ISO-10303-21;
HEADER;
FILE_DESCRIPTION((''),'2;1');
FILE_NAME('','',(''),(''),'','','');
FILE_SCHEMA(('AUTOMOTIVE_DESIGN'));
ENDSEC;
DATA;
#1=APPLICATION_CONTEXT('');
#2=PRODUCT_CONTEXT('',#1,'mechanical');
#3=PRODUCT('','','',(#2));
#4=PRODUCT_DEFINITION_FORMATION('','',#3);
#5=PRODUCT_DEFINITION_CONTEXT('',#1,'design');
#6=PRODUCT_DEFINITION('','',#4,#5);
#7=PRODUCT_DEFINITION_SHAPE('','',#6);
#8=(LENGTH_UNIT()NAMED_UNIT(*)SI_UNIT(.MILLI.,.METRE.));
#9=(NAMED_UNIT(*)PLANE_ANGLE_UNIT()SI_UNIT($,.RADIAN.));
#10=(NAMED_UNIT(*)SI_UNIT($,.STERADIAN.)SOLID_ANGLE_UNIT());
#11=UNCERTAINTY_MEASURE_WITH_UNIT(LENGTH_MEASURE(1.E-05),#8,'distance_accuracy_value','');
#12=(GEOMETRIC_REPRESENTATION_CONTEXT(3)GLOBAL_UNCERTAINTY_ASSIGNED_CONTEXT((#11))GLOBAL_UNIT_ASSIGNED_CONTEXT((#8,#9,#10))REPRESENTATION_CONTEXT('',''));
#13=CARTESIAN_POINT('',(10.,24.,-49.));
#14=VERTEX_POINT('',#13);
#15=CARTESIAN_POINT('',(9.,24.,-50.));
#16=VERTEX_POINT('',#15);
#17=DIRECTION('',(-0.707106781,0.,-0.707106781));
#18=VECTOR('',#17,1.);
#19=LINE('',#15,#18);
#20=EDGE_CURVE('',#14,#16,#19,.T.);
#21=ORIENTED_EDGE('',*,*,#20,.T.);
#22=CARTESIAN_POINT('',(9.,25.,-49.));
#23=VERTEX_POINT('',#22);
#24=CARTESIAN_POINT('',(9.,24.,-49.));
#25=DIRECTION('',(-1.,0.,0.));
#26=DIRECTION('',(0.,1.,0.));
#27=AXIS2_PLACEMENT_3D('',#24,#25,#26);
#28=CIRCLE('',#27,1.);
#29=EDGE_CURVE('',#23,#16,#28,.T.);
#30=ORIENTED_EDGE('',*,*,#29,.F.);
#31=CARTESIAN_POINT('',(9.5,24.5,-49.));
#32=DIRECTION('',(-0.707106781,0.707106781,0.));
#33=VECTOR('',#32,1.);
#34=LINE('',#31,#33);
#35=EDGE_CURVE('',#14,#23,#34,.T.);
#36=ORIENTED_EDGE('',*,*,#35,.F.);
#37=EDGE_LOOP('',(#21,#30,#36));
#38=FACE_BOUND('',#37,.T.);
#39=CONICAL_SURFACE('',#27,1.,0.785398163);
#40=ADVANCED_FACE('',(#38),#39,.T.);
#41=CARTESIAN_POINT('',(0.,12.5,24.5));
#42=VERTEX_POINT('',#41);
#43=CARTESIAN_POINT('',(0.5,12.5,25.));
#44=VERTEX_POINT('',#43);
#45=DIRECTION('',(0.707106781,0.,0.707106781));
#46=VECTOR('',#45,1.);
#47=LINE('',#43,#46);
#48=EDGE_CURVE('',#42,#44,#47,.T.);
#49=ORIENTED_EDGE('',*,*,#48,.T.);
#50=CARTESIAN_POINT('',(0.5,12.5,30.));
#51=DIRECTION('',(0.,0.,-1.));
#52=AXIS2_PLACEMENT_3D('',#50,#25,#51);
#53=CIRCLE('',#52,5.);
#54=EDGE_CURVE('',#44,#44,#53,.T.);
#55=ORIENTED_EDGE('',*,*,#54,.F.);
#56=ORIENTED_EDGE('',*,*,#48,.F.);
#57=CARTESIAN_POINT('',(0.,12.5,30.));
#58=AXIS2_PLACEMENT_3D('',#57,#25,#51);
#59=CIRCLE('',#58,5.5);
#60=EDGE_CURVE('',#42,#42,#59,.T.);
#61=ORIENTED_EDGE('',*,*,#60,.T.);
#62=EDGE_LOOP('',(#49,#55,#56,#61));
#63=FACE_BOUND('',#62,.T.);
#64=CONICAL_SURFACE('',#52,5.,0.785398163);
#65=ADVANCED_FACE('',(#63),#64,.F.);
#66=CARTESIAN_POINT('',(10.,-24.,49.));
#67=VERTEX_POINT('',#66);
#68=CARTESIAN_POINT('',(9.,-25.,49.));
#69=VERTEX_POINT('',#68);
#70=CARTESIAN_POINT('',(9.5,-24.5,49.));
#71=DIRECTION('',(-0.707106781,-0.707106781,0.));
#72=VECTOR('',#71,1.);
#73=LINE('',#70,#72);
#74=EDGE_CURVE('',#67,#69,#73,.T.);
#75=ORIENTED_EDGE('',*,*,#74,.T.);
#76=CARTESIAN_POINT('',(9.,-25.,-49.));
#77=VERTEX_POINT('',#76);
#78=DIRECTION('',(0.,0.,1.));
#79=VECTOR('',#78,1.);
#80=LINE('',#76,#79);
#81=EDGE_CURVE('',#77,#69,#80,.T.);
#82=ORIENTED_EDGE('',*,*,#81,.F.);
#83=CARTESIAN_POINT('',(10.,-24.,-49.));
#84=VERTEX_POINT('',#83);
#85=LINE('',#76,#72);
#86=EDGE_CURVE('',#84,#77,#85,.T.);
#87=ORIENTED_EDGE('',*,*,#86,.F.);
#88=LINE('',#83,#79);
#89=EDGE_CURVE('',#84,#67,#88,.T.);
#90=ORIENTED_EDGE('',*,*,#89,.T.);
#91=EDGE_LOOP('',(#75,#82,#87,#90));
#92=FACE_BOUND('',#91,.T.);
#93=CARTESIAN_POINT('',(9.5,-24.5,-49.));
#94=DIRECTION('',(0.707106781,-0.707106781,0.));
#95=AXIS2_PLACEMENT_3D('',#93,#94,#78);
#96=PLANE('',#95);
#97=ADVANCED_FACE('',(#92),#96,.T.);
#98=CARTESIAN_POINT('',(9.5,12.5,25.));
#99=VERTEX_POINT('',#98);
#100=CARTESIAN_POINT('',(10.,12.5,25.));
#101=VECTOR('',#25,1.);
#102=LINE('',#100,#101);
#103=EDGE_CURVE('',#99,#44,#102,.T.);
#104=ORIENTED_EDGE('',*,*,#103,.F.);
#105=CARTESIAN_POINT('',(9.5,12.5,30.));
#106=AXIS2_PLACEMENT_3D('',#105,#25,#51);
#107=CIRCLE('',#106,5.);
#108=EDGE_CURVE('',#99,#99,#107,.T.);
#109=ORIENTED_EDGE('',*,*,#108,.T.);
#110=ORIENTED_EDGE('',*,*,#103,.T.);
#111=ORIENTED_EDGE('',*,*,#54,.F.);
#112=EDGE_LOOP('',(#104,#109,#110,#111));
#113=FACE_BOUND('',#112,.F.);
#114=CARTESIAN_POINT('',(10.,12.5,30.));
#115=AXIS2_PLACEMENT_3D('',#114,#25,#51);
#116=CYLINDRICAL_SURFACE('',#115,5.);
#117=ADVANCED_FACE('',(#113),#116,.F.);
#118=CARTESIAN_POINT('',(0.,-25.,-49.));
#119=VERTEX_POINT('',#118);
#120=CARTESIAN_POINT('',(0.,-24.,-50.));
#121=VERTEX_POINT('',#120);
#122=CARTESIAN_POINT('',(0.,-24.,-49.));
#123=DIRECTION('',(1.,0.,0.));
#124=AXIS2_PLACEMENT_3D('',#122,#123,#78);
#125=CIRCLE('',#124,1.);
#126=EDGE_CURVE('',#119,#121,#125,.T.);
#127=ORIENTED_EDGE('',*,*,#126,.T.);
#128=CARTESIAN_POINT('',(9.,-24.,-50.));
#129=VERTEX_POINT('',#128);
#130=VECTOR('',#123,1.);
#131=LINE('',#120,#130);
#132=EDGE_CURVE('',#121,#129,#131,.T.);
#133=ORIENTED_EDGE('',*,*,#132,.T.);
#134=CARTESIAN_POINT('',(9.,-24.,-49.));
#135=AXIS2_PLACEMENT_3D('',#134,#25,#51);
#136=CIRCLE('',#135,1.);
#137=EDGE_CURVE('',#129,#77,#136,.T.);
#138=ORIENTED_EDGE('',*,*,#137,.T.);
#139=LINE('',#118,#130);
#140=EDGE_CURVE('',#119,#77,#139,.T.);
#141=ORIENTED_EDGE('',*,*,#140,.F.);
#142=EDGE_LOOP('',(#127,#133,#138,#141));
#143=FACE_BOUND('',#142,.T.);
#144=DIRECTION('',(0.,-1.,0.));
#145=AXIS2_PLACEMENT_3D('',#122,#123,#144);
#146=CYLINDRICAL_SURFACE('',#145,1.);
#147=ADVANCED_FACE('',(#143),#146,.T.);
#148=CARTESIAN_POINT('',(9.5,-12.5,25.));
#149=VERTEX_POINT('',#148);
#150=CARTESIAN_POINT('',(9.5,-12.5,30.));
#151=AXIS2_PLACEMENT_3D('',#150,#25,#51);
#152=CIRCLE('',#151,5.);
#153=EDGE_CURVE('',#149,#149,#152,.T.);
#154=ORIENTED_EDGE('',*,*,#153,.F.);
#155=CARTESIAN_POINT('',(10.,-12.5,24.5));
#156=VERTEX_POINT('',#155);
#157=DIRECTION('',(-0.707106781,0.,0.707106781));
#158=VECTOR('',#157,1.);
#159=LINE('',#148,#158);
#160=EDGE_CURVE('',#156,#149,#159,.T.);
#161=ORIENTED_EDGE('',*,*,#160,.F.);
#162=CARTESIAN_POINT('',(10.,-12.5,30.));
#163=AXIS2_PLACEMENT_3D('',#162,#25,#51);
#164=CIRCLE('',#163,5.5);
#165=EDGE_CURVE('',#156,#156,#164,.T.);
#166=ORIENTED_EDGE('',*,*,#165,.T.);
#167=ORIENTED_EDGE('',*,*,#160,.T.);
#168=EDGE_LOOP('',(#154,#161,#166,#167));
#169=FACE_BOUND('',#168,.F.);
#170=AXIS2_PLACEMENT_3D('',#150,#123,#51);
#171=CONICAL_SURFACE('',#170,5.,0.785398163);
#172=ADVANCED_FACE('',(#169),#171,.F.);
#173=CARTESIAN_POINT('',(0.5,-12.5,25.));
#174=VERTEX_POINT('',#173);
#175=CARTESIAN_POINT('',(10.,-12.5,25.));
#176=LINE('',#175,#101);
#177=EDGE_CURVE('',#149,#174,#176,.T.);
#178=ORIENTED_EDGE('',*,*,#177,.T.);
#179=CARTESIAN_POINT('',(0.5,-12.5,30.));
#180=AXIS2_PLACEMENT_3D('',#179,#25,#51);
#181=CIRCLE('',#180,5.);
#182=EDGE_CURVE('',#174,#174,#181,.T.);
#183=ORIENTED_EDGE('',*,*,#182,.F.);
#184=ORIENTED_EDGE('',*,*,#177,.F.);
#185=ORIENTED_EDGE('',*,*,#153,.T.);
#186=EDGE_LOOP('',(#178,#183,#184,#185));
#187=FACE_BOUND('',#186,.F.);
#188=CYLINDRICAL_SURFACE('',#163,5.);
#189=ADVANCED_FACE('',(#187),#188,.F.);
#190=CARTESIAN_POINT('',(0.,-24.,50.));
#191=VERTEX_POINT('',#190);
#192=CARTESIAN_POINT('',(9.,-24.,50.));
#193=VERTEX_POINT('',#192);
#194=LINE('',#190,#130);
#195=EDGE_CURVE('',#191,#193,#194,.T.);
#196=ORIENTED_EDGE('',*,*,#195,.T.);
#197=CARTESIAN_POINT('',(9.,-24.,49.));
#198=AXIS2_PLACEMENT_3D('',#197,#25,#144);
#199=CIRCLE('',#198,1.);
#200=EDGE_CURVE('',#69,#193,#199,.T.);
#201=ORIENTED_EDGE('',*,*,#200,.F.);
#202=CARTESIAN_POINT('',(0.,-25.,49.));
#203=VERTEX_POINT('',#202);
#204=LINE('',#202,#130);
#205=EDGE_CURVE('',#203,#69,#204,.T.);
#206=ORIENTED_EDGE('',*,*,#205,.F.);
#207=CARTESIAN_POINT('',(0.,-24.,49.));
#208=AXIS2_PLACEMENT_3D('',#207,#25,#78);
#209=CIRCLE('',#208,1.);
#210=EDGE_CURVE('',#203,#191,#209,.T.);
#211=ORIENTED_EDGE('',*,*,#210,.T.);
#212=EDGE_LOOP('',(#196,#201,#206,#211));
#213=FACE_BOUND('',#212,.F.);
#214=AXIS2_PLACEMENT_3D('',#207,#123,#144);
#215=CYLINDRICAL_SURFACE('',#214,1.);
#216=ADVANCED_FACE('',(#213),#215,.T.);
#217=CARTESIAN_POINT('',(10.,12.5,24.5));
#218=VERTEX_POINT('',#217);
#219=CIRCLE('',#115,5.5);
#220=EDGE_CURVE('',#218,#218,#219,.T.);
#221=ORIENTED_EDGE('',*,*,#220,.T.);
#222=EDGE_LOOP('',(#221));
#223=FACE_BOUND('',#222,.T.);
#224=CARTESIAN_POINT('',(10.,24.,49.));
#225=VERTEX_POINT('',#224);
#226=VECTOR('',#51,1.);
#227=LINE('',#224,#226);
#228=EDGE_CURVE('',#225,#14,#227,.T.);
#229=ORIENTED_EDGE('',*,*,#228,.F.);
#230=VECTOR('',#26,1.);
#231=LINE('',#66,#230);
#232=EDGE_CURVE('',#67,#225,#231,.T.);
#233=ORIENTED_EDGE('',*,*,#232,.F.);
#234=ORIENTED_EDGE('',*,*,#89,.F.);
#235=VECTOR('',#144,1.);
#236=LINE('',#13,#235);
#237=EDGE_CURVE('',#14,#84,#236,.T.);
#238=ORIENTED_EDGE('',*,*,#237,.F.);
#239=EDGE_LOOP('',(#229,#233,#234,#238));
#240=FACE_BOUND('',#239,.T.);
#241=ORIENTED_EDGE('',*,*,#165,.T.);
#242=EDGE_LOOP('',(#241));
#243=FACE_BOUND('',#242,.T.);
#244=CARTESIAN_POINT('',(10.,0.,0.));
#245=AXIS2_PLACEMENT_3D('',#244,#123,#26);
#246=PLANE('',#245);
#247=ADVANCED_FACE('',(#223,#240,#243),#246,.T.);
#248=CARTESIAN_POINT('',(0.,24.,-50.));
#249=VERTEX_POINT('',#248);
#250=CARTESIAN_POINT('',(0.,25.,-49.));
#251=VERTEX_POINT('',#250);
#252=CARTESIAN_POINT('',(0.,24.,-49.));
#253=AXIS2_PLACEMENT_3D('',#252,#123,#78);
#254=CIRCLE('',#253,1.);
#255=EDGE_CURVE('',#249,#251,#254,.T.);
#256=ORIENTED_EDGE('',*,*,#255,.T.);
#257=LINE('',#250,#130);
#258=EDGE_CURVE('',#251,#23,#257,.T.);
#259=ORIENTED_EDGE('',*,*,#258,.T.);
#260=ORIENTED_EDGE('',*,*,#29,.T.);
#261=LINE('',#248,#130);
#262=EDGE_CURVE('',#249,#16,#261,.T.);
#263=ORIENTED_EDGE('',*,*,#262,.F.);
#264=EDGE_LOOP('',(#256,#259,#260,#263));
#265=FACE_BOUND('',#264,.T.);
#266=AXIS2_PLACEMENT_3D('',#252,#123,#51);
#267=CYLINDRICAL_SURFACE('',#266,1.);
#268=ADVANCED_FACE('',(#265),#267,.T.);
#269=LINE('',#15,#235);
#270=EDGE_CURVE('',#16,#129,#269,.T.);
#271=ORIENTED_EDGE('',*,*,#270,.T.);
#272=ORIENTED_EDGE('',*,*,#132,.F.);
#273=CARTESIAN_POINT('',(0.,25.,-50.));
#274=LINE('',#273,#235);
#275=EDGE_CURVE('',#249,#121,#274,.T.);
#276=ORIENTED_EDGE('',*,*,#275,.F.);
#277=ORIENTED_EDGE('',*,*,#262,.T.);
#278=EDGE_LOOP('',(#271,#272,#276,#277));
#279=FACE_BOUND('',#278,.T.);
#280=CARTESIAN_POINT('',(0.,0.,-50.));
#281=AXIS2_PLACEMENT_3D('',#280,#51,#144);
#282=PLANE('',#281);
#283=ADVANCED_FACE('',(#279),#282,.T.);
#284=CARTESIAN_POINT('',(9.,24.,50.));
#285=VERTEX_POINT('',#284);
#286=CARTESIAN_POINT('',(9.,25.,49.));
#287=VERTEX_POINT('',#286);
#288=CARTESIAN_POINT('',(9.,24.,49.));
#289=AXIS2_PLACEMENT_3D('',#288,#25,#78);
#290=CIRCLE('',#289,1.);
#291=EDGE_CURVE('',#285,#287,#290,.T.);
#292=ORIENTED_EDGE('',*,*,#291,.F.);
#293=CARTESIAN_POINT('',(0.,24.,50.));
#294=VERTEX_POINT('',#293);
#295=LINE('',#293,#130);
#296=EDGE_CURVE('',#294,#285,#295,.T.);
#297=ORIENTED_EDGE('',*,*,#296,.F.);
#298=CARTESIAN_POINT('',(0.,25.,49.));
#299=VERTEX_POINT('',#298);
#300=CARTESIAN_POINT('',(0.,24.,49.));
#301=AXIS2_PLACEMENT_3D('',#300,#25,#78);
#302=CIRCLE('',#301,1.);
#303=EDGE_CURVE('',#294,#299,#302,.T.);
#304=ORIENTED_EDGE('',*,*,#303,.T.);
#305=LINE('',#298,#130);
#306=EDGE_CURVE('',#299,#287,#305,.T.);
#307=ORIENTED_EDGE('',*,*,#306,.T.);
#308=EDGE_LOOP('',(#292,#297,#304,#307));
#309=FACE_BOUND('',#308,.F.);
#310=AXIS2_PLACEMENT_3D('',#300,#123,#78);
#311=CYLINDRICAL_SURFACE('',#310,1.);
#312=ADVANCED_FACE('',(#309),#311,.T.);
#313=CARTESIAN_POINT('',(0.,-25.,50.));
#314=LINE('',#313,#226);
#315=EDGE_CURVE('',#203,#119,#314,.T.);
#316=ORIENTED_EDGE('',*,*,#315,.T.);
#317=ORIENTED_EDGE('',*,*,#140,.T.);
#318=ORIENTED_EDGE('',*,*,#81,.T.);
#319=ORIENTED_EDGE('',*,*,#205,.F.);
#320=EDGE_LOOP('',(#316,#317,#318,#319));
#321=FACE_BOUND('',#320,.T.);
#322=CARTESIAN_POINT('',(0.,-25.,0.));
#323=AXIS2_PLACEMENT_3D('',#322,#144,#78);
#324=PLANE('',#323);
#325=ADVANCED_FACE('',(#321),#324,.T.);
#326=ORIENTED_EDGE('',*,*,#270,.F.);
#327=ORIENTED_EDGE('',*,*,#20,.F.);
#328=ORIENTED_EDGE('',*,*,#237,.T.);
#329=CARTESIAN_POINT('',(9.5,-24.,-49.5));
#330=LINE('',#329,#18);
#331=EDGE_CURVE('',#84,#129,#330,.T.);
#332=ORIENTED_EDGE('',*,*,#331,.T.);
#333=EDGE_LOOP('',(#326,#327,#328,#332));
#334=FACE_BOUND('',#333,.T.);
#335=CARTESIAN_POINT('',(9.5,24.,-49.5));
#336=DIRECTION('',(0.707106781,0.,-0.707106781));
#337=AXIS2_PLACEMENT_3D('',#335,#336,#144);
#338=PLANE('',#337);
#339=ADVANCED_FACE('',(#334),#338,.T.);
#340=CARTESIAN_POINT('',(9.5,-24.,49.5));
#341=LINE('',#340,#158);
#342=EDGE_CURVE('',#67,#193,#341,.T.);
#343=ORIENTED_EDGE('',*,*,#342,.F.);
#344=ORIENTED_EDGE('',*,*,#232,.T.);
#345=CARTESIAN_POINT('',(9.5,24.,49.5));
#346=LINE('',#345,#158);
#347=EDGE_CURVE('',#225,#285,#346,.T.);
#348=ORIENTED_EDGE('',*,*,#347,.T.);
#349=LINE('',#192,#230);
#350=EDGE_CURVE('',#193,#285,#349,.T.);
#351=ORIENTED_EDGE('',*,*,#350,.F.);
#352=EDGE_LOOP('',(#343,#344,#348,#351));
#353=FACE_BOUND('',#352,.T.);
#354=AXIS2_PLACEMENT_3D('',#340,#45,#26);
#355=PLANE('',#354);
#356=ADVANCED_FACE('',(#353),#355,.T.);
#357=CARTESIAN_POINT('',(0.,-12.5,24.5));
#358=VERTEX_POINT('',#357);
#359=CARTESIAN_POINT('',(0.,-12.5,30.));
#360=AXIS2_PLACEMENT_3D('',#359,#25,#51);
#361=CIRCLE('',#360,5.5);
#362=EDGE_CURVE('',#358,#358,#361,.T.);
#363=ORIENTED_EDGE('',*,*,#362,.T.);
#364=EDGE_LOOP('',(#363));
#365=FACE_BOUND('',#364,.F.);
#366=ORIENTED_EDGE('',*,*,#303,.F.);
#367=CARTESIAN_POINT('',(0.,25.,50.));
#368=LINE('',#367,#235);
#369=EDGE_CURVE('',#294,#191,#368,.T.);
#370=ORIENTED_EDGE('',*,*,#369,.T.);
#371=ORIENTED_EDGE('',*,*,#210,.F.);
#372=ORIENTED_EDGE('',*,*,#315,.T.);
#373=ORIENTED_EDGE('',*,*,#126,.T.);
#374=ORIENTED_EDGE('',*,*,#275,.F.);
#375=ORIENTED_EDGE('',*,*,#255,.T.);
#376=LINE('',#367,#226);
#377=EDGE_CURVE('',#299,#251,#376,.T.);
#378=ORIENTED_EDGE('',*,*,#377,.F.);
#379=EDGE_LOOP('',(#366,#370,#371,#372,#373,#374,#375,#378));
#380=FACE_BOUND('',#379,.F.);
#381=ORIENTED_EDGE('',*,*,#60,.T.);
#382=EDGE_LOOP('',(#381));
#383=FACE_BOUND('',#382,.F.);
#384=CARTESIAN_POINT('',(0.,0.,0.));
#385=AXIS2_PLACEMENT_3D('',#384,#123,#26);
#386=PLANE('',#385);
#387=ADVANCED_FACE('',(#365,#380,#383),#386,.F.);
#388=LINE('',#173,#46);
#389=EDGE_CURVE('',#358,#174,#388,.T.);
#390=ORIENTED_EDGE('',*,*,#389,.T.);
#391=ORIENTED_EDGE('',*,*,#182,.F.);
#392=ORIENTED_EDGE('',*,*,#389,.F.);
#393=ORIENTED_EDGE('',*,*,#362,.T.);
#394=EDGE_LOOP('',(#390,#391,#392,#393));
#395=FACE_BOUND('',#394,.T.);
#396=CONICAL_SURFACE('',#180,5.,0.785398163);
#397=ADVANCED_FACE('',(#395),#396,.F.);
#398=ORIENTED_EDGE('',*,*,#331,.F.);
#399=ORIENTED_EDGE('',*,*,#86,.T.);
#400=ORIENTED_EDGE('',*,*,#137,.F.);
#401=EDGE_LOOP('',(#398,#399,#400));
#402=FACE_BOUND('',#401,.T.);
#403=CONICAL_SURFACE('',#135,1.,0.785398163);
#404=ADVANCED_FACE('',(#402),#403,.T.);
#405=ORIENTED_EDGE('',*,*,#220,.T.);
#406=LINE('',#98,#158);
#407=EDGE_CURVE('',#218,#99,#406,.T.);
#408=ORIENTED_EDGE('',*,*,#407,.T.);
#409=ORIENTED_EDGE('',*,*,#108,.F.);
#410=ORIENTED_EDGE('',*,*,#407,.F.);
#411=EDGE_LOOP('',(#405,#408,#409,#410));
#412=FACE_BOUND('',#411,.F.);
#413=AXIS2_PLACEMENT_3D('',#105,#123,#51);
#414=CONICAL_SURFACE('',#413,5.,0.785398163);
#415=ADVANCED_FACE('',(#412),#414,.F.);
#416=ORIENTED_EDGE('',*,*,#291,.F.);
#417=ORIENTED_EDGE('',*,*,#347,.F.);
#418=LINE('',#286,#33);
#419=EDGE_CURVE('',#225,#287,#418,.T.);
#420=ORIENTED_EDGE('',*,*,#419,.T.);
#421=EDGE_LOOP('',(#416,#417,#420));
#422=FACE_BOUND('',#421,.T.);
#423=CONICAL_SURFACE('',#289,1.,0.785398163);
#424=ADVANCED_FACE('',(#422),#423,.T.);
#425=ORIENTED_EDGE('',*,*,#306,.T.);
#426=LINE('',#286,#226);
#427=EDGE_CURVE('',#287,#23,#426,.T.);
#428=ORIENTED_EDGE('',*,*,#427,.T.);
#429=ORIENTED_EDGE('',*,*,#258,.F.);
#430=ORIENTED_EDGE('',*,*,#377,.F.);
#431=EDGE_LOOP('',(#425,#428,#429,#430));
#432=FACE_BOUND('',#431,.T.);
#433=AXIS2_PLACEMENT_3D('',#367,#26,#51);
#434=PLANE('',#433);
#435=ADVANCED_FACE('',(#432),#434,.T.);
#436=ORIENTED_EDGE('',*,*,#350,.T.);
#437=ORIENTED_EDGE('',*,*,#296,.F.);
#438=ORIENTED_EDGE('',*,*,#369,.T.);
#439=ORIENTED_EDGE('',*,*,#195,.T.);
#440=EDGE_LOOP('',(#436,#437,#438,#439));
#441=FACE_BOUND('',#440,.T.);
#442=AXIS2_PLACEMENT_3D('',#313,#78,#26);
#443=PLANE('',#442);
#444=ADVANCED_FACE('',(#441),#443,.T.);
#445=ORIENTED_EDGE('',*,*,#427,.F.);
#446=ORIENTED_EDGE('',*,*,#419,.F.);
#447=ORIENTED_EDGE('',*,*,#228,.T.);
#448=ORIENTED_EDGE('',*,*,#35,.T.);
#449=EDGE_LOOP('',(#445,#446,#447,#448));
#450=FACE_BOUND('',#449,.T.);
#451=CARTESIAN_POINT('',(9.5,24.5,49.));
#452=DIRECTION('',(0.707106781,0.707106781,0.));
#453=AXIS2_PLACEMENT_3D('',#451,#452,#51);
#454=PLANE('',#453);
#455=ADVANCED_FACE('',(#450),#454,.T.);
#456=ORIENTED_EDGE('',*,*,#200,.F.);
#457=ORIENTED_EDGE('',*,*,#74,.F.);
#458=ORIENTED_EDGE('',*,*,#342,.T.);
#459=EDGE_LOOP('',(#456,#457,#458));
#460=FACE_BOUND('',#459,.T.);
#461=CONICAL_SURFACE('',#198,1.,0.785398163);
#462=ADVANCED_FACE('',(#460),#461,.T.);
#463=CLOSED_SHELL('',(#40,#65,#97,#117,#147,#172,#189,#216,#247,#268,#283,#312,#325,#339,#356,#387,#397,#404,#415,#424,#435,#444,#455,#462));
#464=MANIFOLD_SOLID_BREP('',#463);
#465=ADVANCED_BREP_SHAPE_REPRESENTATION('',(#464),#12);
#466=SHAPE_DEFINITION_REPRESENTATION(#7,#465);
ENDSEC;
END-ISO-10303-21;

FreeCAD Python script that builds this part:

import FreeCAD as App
import Part
import Sketcher
Q = App.Units.Quantity


def edges_at(feature, points):
    """Names of the edges that pass closest to the given points."""
    edges = feature.Shape.Edges
    near = lambda p: min(range(len(edges)), key=lambda i: edges[i].distToShape(Part.Vertex(*p))[0])
    return sorted({f"Edge{near(p) + 1}" for p in points})


def add_polygon(sketch, points):
    """Adds a closed chain of lines whose ends are joined by coincident constraints."""
    first, n = sketch.GeometryCount, len(points)
    for a, b in zip(points, points[1:] + points[:1]):
        sketch.addGeometry(Part.LineSegment(App.Vector(*a, 0), App.Vector(*b, 0)), False)
    for i in range(n):
        sketch.addConstraint(Sketcher.Constraint("Coincident", first + i, 2, first + (i + 1) % n, 1))

doc = App.newDocument("Part")
params = doc.addObject("Spreadsheet::Sheet", "Params")
for row, (alias, value) in enumerate([
    ("sketch1_width", "50 mm"),
    ("sketch1_height", "100 mm"),
    ("pad1_length", "10 mm"),
    ("fillet_radius", "1 mm"),
    ("chamfer_size", "1 mm"),
    ("sketch2_diameter", "10 mm"),
    ("hole_diameter", "10 mm"),
    ("chamfer2_size", "0.5 mm"),
], start=1):
    params.set(f"A{row}", alias)
    params.set(f"B{row}", "=" + value)
    params.setAlias(f"B{row}", alias)

body = doc.addObject("PartDesign::Body", "Body")

sketch1 = body.newObject("Sketcher::SketchObject", "Sketch")
sketch1.AttachmentSupport = (doc.getObject("YZ_Plane"), [""])
sketch1.MapMode = "FlatFace"
add_polygon(sketch1, [(-25, 50), (-25, -50), (25, -50), (25, 50)])
sketch1.addConstraint([
    Sketcher.Constraint("Vertical", 0),
    Sketcher.Constraint("Horizontal", 1),
    Sketcher.Constraint("Vertical", 2),
    Sketcher.Constraint("Horizontal", 3),
    Sketcher.Constraint("Symmetric", 0, 2, 2, 2, -1, 1),
    Sketcher.Constraint("DistanceX", 1, 1, 1, 2, Q("50 mm")),
    Sketcher.Constraint("DistanceY", 0, 2, 0, 1, Q("100 mm")),
])
sketch1.setExpression("Constraints[9]", "Params.sketch1_width")
sketch1.setExpression("Constraints[10]", "Params.sketch1_height")
pad1 = body.newObject("PartDesign::Pad", "Pad")
pad1.Profile = sketch1
pad1.setExpression("Length", "Params.pad1_length")
doc.recompute()

fillet = body.newObject("PartDesign::Fillet", "Fillet")
fillet.Base = (pad1, edges_at(pad1, [
    (5, 25, 50),
    (5, -25, 50),
    (5, -25, -50),
    (5, 25, -50),
]))
fillet.setExpression("Radius", "Params.fillet_radius")
doc.recompute()

chamfer = body.newObject("PartDesign::Chamfer", "Chamfer")
chamfer.Base = (fillet, edges_at(fillet, [
    (10, 0, 50),
    (10, -24.707, 49.707),
    (10, -25, 0),
    (10, -24.707, -49.707),
    (10, 0, -50),
    (10, 24.707, -49.707),
    (10, 25, 0),
    (10, 24.707, 49.707),
]))
chamfer.setExpression("Size", "Params.chamfer_size")

sketch2 = body.newObject("Sketcher::SketchObject", "Sketch001")
sketch2.AttachmentSupport = (doc.getObject("YZ_Plane"), [""])
sketch2.MapMode = "FlatFace"
sketch2.AttachmentOffset = App.Placement(App.Vector(0, 0, 10), App.Rotation())
sketch2.addGeometry([
    Part.Circle(App.Vector(12, 30, 0), App.Vector(0, 0, 1), 5),
    Part.Circle(App.Vector(-12, 30, 0), App.Vector(0, 0, 1), 5),
], False)
sketch2.addConstraint([
    Sketcher.Constraint("Equal", 0, 1),
    Sketcher.Constraint("Symmetric", 0, 3, 1, 3, -2),
    Sketcher.Constraint("Diameter", 0, Q("10 mm")),
    Sketcher.Constraint("DistanceY", -1, 1, 0, 3, Q("30 mm")),
    Sketcher.Constraint("DistanceX", 1, 3, 0, 3, Q("25 mm")),
])
sketch2.setExpression("Constraints[2]", "Params.sketch2_diameter")
doc.recompute()
hole = body.newObject("PartDesign::Hole", "Hole")
hole.Profile = sketch2
hole.ThreadType = "None"
hole.setExpression("Diameter", "Params.hole_diameter")
hole.DepthType = "ThroughAll"
doc.recompute()

chamfer2 = body.newObject("PartDesign::Chamfer", "Chamfer001")
chamfer2.Base = (hole, edges_at(hole, [
    (10, -12.5, 35),
    (10, 12.5, 35),
    (0, -12.5, 35),
    (0, 12.5, 35),
]))
chamfer2.setExpression("Size", "Params.chamfer2_size")

doc.recompute()
